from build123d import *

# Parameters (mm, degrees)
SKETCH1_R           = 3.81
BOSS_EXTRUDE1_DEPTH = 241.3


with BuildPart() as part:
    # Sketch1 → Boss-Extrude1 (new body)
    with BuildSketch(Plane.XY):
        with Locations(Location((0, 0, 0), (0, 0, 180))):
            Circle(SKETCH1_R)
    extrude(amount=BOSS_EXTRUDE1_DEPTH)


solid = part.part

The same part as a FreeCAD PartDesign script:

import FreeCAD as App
import Part
import Sketcher
Q = App.Units.Quantity

doc = App.newDocument("Part")
params = doc.addObject("Spreadsheet::Sheet", "Params")
for row, (alias, value) in enumerate([
    ("sketch1_diameter", "0.3 in"),
    ("pad1_length", "9.5 in"),
], start=1):
    params.set(f"A{row}", alias)
    params.set(f"B{row}", "=" + value)
    params.setAlias(f"B{row}", alias)

body = doc.addObject("PartDesign::Body", "Body")

sketch1 = body.newObject("Sketcher::SketchObject", "Sketch")
sketch1.AttachmentSupport = (doc.getObject("XY_Plane"), [""])
sketch1.MapMode = "FlatFace"
sketch1.addGeometry(Part.Circle(App.Vector(0, 0, 0), App.Vector(0, 0, 1), 3.81), False)
sketch1.addConstraint(Sketcher.Constraint("Coincident", 0, 3, -1, 1))
sketch1.addConstraint(Sketcher.Constraint("Diameter", 0, Q("0.3 in")))
sketch1.setExpression("Constraints[1]", "Params.sketch1_diameter")
pad1 = body.newObject("PartDesign::Pad", "Pad")
pad1.Profile = sketch1
pad1.setExpression("Length", "Params.pad1_length")

doc.recompute()
